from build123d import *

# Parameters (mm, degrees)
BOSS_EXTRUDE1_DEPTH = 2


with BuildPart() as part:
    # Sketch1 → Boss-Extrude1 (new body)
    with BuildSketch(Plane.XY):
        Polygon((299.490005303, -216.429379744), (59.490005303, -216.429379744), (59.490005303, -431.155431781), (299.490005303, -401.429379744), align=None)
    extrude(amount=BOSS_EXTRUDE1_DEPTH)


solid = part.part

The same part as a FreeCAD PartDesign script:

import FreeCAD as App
import Part
import Sketcher
from FreeCAD import Vector


def add_polygon(sketch, points):
    """Adds a closed chain of lines whose ends are joined by coincident constraints."""
    first, n = sketch.GeometryCount, len(points)
    for a, b in zip(points, points[1:] + points[:1]):
        sketch.addGeometry(Part.LineSegment(App.Vector(*a, 0), App.Vector(*b, 0)), False)
    for i in range(n):
        sketch.addConstraint(Sketcher.Constraint("Coincident", first + i, 2, first + (i + 1) % n, 1))

doc = App.newDocument("Part")
body = doc.addObject("PartDesign::Body", "Body")

sketch1 = doc.addObject("Sketcher::SketchObject", "Sketch")
body.addObject(sketch1)
sketch1.AttachmentSupport = (doc.XY_Plane, [""])
sketch1.MapMode = "FlatFace"
add_polygon(sketch1, [(299.490005, -216.42938), (59.490005, -216.42938), (59.490005, -431.155432), (299.490005, -401.42938)])
sketch1.addConstraint(Sketcher.Constraint("Horizontal", 0))
sketch1.addConstraint(Sketcher.Constraint("Vertical", 1))
sketch1.addConstraint(Sketcher.Constraint("Vertical", 3))
sketch1.addConstraint(Sketcher.Constraint("DistanceX", 0, 2, 0, 1, 240.0))
sketch1.addConstraint(Sketcher.Constraint("DistanceY", 3, 1, 3, 2, 185.0))
sketch1.addConstraint(Sketcher.Constraint("DistanceY", 1, 2, 1, 1, 214.726052))
sketch1.addConstraint(Sketcher.Constraint("DistanceY", 0, 2, -1, 1, 216.42938))
sketch1.addConstraint(Sketcher.Constraint("DistanceX", -1, 1, 0, 2, 59.490005))
pad1 = doc.addObject("PartDesign::Pad", "Pad")
body.addObject(pad1)
pad1.Profile = sketch1
pad1.Length = 2

doc.recompute()
